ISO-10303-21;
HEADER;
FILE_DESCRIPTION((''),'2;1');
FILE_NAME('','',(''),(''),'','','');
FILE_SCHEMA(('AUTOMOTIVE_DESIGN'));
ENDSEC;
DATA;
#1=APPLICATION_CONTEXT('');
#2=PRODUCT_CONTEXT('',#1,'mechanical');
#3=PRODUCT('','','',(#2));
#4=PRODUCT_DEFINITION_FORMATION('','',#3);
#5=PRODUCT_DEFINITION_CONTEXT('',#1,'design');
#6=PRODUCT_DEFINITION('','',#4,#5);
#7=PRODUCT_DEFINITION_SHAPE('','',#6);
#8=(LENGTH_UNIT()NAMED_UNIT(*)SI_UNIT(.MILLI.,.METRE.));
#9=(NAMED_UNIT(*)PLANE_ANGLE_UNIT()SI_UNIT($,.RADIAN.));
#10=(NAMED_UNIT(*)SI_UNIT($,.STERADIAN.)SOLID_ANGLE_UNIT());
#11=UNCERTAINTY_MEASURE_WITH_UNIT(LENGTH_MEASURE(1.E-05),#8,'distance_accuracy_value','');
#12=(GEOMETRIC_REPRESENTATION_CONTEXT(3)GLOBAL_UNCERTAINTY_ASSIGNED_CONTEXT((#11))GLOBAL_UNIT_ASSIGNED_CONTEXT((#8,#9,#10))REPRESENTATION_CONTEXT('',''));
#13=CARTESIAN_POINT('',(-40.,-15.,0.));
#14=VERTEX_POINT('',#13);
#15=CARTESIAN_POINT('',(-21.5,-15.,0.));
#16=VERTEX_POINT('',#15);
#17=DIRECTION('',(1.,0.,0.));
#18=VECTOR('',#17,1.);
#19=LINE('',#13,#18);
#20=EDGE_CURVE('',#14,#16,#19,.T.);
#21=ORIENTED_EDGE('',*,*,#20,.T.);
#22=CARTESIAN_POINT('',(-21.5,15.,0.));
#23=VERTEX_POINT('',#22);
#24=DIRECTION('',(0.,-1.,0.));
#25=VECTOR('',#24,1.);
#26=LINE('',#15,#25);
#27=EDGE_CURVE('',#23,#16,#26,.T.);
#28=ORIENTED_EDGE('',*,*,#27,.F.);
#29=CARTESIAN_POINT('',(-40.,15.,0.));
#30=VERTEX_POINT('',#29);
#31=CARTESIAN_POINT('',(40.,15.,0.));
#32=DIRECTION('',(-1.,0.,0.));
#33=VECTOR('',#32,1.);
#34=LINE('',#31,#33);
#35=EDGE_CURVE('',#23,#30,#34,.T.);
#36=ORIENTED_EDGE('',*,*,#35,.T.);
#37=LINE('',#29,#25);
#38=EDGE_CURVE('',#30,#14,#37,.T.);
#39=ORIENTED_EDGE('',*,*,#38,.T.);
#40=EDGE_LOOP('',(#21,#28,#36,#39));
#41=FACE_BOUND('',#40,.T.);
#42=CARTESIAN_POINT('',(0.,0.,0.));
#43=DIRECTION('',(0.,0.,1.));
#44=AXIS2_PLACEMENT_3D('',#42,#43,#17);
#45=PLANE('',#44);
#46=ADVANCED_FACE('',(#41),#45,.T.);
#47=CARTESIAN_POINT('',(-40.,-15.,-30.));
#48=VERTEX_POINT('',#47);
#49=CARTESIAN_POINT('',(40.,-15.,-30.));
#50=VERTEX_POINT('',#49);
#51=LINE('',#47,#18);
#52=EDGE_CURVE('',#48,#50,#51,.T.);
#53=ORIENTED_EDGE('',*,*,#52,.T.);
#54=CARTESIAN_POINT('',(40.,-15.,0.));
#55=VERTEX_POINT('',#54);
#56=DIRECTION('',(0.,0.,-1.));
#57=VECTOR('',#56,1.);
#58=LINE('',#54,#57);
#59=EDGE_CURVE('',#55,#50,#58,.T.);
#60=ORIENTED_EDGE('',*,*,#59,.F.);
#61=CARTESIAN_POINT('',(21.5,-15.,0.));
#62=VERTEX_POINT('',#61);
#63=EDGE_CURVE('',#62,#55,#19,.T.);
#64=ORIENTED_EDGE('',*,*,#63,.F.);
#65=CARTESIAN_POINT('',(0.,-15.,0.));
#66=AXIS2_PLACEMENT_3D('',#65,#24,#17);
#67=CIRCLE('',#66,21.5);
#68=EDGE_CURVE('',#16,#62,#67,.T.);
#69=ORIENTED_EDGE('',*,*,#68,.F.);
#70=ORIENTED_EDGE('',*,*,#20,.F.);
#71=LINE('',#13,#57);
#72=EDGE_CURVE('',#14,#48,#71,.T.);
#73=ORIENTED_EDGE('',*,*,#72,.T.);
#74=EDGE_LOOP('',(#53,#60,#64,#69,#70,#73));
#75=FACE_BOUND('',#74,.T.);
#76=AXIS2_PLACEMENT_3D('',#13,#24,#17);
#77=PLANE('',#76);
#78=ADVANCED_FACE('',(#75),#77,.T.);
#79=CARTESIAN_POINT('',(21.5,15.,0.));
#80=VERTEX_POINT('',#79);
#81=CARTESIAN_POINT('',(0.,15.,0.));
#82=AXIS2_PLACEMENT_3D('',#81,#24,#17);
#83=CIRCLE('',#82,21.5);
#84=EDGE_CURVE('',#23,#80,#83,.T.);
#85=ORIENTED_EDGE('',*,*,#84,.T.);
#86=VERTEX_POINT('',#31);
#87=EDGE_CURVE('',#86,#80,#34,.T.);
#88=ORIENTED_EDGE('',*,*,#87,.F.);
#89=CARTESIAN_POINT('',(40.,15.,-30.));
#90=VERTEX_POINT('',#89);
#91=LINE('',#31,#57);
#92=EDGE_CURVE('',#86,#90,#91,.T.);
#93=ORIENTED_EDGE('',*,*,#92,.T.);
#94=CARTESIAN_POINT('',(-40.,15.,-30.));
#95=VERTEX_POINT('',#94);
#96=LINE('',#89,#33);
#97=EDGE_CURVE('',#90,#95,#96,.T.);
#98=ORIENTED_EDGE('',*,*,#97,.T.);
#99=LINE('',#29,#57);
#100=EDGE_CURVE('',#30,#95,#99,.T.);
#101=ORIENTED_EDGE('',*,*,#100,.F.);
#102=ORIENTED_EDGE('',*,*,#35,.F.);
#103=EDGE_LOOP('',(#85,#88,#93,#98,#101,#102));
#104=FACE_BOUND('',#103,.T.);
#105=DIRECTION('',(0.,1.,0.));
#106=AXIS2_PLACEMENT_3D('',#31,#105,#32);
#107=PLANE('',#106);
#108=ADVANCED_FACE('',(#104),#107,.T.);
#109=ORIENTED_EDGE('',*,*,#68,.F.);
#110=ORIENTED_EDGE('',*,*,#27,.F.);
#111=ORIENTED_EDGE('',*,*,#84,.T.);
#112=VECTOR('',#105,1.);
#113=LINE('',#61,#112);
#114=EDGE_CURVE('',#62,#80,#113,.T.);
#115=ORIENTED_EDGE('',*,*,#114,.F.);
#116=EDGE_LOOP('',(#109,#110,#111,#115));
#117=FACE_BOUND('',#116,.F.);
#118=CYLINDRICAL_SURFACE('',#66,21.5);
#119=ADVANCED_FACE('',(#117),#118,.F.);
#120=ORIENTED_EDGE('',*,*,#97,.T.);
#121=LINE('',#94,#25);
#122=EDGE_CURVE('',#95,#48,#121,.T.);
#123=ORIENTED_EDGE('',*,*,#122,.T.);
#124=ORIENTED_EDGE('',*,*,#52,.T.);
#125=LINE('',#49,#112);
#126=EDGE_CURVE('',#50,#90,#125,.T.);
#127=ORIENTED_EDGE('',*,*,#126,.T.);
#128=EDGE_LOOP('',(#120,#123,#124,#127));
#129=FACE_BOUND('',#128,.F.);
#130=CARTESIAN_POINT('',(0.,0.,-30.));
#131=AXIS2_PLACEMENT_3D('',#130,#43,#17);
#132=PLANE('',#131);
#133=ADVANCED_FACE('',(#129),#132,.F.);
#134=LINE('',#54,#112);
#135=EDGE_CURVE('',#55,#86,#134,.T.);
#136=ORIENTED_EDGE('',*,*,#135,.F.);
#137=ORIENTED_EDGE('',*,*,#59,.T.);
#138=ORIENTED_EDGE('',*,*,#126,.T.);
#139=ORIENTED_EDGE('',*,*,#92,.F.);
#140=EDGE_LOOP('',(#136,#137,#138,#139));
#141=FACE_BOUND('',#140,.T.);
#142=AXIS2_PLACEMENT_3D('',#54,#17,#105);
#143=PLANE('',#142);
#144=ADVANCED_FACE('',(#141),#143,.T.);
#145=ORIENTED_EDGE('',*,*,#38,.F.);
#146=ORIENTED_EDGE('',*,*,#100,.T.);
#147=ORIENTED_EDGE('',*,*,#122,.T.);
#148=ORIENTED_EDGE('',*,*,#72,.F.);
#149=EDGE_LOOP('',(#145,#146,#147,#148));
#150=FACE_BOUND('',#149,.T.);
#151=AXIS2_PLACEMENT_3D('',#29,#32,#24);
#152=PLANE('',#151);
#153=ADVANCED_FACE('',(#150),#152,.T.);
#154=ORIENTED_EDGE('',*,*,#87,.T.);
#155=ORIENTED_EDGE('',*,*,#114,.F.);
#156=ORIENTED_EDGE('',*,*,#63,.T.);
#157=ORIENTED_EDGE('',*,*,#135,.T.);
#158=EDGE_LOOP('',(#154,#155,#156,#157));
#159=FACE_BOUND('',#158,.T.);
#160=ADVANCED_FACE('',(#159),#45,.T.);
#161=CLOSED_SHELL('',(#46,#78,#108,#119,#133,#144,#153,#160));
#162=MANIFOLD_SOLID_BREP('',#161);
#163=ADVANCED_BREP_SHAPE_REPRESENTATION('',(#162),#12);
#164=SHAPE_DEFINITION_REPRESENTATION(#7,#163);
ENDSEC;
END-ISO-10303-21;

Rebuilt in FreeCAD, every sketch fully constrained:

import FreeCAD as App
import Part
import Sketcher
from FreeCAD import Vector
Q = App.Units.Quantity

doc = App.newDocument("Part")
body = doc.addObject("PartDesign::Body", "Body")

sketch1 = body.newObject("Sketcher::SketchObject", "Sketch")
sketch1.AttachmentSupport = (doc.getObject("XY_Plane"), [""])
sketch1.MapMode = "FlatFace"
sketch1.addGeometry(Part.LineSegment(Vector(-40, 15, 0), Vector(-40, -15, 0)), False)
sketch1.addGeometry(Part.LineSegment(Vector(-40, -15, 0), Vector(40, -15, 0)), False)
sketch1.addGeometry(Part.LineSegment(Vector(40, -15, 0), Vector(40, 15, 0)), False)
sketch1.addGeometry(Part.LineSegment(Vector(40, 15, 0), Vector(-40, 15, 0)), False)
sketch1.addConstraint(Sketcher.Constraint("Coincident", 0, 2, 1, 1))
sketch1.addConstraint(Sketcher.Constraint("Coincident", 1, 2, 2, 1))
sketch1.addConstraint(Sketcher.Constraint("Coincident", 2, 2, 3, 1))
sketch1.addConstraint(Sketcher.Constraint("Coincident", 3, 2, 0, 1))
sketch1.addConstraint(Sketcher.Constraint("Vertical", 0))
sketch1.addConstraint(Sketcher.Constraint("Horizontal", 1))
sketch1.addConstraint(Sketcher.Constraint("Vertical", 2))
sketch1.addConstraint(Sketcher.Constraint("Horizontal", 3))
sketch1.addConstraint(Sketcher.Constraint("Symmetric", 0, 2, 2, 2, -1, 1))
sketch1.addConstraint(Sketcher.Constraint("DistanceX", 1, 1, 1, 2, Q("80 mm")))
sketch1.addConstraint(Sketcher.Constraint("DistanceY", 0, 2, 0, 1, Q("30 mm")))
pad1 = body.newObject("PartDesign::Pad", "Pad")
pad1.Profile = sketch1
pad1.Length = 30
pad1.Reversed = True

sketch2 = body.newObject("Sketcher::SketchObject", "Sketch001")
sketch2.AttachmentSupport = (doc.getObject("XZ_Plane"), [""])
sketch2.MapMode = "FlatFace"
sketch2.AttachmentOffset = App.Placement(Vector(0, 0, 15), App.Rotation())
sketch2.addGeometry(Part.Circle(Vector(0, 0, 0), Vector(0, 0, 1), 22), False)
sketch2.addConstraint(Sketcher.Constraint("Coincident", 0, 3, -1, 1))
sketch2.addConstraint(Sketcher.Constraint("Diameter", 0, Q("43 mm")))
pocket1 = body.newObject("PartDesign::Pocket", "Pocket")
pocket1.Profile = sketch2
pocket1.Length = 30

doc.recompute()
